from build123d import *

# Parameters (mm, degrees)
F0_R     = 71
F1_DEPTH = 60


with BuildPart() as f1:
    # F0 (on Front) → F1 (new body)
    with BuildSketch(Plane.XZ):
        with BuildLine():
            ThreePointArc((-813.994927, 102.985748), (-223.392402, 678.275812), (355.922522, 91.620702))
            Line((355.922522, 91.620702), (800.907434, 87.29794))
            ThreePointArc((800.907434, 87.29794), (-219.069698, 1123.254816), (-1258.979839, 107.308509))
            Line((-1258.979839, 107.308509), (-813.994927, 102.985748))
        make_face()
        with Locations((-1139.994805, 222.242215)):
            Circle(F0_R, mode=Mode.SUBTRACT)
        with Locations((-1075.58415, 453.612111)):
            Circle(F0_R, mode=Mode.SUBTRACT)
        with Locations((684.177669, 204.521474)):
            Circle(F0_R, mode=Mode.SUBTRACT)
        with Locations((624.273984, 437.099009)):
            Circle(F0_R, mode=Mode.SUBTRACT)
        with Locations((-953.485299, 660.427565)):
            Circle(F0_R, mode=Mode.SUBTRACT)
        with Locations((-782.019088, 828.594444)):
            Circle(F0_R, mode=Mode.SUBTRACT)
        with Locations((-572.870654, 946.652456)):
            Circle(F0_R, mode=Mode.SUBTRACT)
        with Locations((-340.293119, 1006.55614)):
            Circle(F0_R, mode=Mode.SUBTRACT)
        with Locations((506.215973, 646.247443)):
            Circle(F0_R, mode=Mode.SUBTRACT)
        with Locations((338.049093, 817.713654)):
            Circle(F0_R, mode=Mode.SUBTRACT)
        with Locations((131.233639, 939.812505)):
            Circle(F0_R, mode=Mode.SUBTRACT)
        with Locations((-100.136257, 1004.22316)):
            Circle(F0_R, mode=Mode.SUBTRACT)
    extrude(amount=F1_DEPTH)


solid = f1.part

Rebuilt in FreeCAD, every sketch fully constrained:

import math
import FreeCAD as App
import Part
import Sketcher
Q = App.Units.Quantity

doc = App.newDocument("Part")
params = doc.addObject("Spreadsheet::Sheet", "Params")
for row, (alias, value) in enumerate([
    ("sketch1_diameter", "142 mm"),
    ("sketch1_radius", "585 mm"),
    ("sketch1_radius2", "1030 mm"),
    ("pad1_length", "60 mm"),
], start=1):
    params.set(f"A{row}", alias)
    params.set(f"B{row}", "=" + value)
    params.setAlias(f"B{row}", alias)

body = doc.addObject("PartDesign::Body", "Body")

# Sketch on XZ plane
sketch1 = doc.addObject("Sketcher::SketchObject", "Sketch")
body.addObject(sketch1)
sketch1.AttachmentSupport = (doc.XZ_Plane, [""])
sketch1.MapMode = "FlatFace"
sketch1.addGeometry([
    Part.ArcOfCircle(Part.Circle(App.Vector(-229, 93, 0), App.Vector(0, 0, 1), 585), math.radians(0), math.radians(179)),  # 0
    Part.LineSegment(App.Vector(356, 92, 0), App.Vector(801, 87, 0)),  # 1
    Part.ArcOfCircle(Part.Circle(App.Vector(-229, 93, 0), App.Vector(0, 0, 1), 1030), math.radians(0), math.radians(179)),  # 2
    Part.LineSegment(App.Vector(-1259, 107, 0), App.Vector(-814, 103, 0)),  # 3
    Part.Circle(App.Vector(-1140, 222, 0), App.Vector(0, 0, 1), 71),  # 4
    Part.Circle(App.Vector(-1076, 454, 0), App.Vector(0, 0, 1), 71),  # 5
    Part.Circle(App.Vector(684, 205, 0), App.Vector(0, 0, 1), 71),  # 6
    Part.Circle(App.Vector(624, 437, 0), App.Vector(0, 0, 1), 71),  # 7
    Part.Circle(App.Vector(-953, 660, 0), App.Vector(0, 0, 1), 71),  # 8
    Part.Circle(App.Vector(-782, 829, 0), App.Vector(0, 0, 1), 71),  # 9
    Part.Circle(App.Vector(-573, 947, 0), App.Vector(0, 0, 1), 71),  # 10
    Part.Circle(App.Vector(-340, 1007, 0), App.Vector(0, 0, 1), 71),  # 11
    Part.Circle(App.Vector(506, 646, 0), App.Vector(0, 0, 1), 71),  # 12
    Part.Circle(App.Vector(338, 818, 0), App.Vector(0, 0, 1), 71),  # 13
    Part.Circle(App.Vector(131, 940, 0), App.Vector(0, 0, 1), 71),  # 14
    Part.Circle(App.Vector(-100, 1004, 0), App.Vector(0, 0, 1), 71),  # 15
], False)
sketch1.addConstraint([
    Sketcher.Constraint("Coincident", 0, 1, 1, 1),
    Sketcher.Constraint("Coincident", 1, 2, 2, 1),
    Sketcher.Constraint("Coincident", 2, 2, 3, 1),
    Sketcher.Constraint("Coincident", 3, 2, 0, 2),
    Sketcher.Constraint("Coincident", 2, 3, 0, 3),
    Sketcher.Constraint("Equal", 4, 5),
    Sketcher.Constraint("Equal", 5, 6),
    Sketcher.Constraint("Equal", 6, 7),
    Sketcher.Constraint("Equal", 7, 8),
    Sketcher.Constraint("Equal", 8, 9),
    Sketcher.Constraint("Equal", 9, 10),
    Sketcher.Constraint("Equal", 10, 11),
    Sketcher.Constraint("Equal", 11, 12),
    Sketcher.Constraint("Equal", 12, 13),
    Sketcher.Constraint("Equal", 13, 14),
    Sketcher.Constraint("Equal", 14, 15),
    Sketcher.Constraint("Parallel", 1, 3),
    Sketcher.Constraint("Equal", 1, 3),
    Sketcher.Constraint("Diameter", 4, Q("142 mm")),
    Sketcher.Constraint("Radius", 0, Q("585 mm")),
    Sketcher.Constraint("Radius", 2, Q("1030 mm")),
    Sketcher.Constraint("DistanceX", 8, 3, -1, 1, Q("953.485299 mm")),
    Sketcher.Constraint("DistanceY", 2, 3, 5, 3, Q("360.308698 mm")),
    Sketcher.Constraint("DistanceX", 0, 3, -1, 1, Q("229.075058 mm")),
    Sketcher.Constraint("DistanceX", 5, 3, -1, 1, Q("1075.58415 mm")),
    Sketcher.Constraint("DistanceY", -1, 1, 5, 3, Q("453.612111 mm")),
    Sketcher.Constraint("DistanceX", -1, 1, 6, 3, Q("684.177669 mm")),
    Sketcher.Constraint("DistanceY", -1, 1, 7, 3, Q("437.099009 mm")),
    Sketcher.Constraint("DistanceX", 9, 3, -1, 1, Q("782.019088 mm")),
    Sketcher.Constraint("DistanceX", 11, 3, -1, 1, Q("340.293119 mm")),
    Sketcher.Constraint("DistanceY", -1, 1, 11, 3, Q("1006.55614 mm")),
    Sketcher.Constraint("DistanceX", -1, 1, 14, 3, Q("131.233639 mm")),
    Sketcher.Constraint("DistanceY", -1, 1, 15, 3, Q("1004.22316 mm")),
    Sketcher.Constraint("DistanceY", -1, 1, 1, 2, Q("87.29794 mm")),
    Sketcher.Constraint("DistanceY", -1, 1, 3, 2, Q("102.985748 mm")),
    Sketcher.Constraint("DistanceY", 2, 3, 6, 3, Q("111.218061 mm")),
    Sketcher.Constraint("DistanceY", 6, 3, 4, 3, Q("17.720741 mm")),
    Sketcher.Constraint("DistanceX", 4, 3, 7, 3, Q("1764.268789 mm")),
    Sketcher.Constraint("DistanceY", 4, 3, 8, 3, Q("438.18535 mm")),
    Sketcher.Constraint("DistanceY", 8, 3, 9, 3, Q("168.166879 mm")),
    Sketcher.Constraint("DistanceY", 8, 3, 10, 3, Q("286.224891 mm")),
    Sketcher.Constraint("DistanceX", 4, 3, 10, 3, Q("567.124151 mm")),
    Sketcher.Constraint("DistanceX", 12, 3, 7, 3, Q("118.058011 mm")),
    Sketcher.Constraint("DistanceY", 6, 3, 12, 3, Q("441.725969 mm")),
    Sketcher.Constraint("DistanceX", 11, 3, 12, 3, Q("846.509092 mm")),
    Sketcher.Constraint("DistanceX", 13, 3, 12, 3, Q("168.16688 mm")),
    Sketcher.Constraint("DistanceY", 12, 3, 13, 3, Q("171.466211 mm")),
    Sketcher.Constraint("DistanceY", 13, 3, 14, 3, Q("122.098851 mm")),
    Sketcher.Constraint("DistanceX", 11, 3, 15, 3, Q("240.156862 mm")),
])
sketch1.setExpression("Constraints[18]", "Params.sketch1_diameter")
sketch1.setExpression("Constraints[19]", "Params.sketch1_radius")
sketch1.setExpression("Constraints[20]", "Params.sketch1_radius2")
pad1 = doc.addObject("PartDesign::Pad", "Pad")
body.addObject(pad1)
pad1.Profile = sketch1
pad1.setExpression("Length", "Params.pad1_length")

doc.recompute()
